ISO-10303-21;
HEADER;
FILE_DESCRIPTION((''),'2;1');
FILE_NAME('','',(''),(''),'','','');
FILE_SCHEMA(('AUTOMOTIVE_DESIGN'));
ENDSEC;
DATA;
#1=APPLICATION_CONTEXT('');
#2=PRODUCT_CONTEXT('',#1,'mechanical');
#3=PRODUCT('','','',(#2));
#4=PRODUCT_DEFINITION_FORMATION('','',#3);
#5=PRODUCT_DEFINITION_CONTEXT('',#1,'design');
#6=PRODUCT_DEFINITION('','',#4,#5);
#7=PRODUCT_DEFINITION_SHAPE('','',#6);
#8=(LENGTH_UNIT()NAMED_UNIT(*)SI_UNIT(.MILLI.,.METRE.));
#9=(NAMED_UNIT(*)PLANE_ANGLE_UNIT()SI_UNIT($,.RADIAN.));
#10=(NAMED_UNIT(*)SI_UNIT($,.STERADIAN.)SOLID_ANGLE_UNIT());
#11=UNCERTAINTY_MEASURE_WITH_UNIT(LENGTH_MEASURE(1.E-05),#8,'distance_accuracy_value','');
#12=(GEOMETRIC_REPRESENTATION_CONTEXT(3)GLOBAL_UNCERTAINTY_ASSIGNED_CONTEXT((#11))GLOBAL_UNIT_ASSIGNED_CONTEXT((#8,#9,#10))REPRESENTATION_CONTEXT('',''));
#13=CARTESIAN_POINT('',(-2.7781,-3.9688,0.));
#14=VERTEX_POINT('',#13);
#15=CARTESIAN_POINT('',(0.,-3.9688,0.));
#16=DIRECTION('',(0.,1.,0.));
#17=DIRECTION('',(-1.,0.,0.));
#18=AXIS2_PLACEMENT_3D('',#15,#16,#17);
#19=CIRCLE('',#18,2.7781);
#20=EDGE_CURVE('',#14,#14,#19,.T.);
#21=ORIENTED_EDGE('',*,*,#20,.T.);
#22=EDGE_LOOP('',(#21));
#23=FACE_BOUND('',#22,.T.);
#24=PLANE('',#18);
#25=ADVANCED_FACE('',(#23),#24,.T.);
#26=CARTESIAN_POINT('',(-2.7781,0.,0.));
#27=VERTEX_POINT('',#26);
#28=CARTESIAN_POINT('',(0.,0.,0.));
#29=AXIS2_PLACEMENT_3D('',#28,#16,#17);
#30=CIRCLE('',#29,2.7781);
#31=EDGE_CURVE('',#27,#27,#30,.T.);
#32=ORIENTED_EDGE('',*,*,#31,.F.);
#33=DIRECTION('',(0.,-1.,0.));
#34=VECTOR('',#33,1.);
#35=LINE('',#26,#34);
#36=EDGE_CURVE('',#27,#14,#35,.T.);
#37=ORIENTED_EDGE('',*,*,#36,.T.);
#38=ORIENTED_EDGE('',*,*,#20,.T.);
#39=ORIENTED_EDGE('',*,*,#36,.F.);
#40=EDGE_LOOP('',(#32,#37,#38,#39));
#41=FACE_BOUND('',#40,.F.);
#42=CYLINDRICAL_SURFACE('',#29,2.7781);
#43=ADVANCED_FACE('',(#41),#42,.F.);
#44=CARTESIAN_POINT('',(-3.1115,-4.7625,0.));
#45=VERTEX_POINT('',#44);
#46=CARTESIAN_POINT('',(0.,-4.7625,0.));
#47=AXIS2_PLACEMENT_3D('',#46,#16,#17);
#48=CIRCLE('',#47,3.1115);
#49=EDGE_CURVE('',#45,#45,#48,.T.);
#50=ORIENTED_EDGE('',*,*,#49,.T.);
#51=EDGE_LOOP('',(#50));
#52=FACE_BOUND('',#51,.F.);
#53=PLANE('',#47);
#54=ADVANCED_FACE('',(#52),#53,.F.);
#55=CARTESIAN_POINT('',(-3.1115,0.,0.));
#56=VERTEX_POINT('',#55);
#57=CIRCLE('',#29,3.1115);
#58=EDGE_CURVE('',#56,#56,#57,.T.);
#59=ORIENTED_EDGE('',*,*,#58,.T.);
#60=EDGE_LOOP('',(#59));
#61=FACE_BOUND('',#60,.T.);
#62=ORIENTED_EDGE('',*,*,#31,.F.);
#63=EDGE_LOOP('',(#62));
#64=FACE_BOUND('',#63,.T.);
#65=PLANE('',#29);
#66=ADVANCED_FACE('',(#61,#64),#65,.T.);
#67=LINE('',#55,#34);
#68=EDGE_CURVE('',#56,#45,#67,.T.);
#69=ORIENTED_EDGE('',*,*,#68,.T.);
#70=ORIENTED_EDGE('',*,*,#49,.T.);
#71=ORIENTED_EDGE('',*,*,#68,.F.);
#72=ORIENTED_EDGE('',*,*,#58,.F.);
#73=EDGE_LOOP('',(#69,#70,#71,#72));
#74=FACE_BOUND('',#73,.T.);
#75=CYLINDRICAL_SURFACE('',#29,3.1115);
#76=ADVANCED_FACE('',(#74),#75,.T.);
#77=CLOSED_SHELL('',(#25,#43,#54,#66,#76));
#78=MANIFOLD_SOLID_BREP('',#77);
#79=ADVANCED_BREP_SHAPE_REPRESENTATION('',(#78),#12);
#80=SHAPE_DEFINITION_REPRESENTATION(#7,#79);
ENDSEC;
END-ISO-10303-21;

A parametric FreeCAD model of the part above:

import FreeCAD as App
import Part
import Sketcher

V = App.Vector
Q = App.Units.Quantity

doc = App.newDocument("Part")
params = doc.addObject("Spreadsheet::Sheet", "Params")
for row, (alias, value) in enumerate([
    ("sketch1_diameter", "0.245 in"),
    ("pad1_length", "0.1875 in"),
    ("sketch2_diameter", "0.218748 in"),
    ("pocket1_length", "0.156252 in"),
], start=1):
    params.set(f"A{row}", alias)
    params.set(f"B{row}", "=" + value)
    params.setAlias(f"B{row}", alias)

body = doc.addObject("PartDesign::Body", "Body")

sketch1 = body.newObject("Sketcher::SketchObject", "Sketch")
sketch1.AttachmentSupport = (doc.getObject("XZ_Plane"), [""])
sketch1.MapMode = "FlatFace"
sketch1.addGeometry(Part.Circle(V(0, 0, 0), V(0, 0, 1), 3.1), False)
sketch1.addConstraint([
    Sketcher.Constraint("Coincident", 0, 3, -1, 1),
    Sketcher.Constraint("Diameter", 0, Q("0.245 in")),
])
sketch1.setExpression("Constraints[1]", "Params.sketch1_diameter")
pad1 = body.newObject("PartDesign::Pad", "Pad")
pad1.Profile = sketch1
pad1.setExpression("Length", "Params.pad1_length")

sketch2 = body.newObject("Sketcher::SketchObject", "Sketch001")
sketch2.AttachmentSupport = (doc.getObject("XZ_Plane"), [""])
sketch2.MapMode = "FlatFace"
sketch2.addGeometry(Part.Circle(V(0, 0, 0), V(0, 0, 1), 2.8), False)
sketch2.addConstraint([
    Sketcher.Constraint("Coincident", 0, 3, -1, 1),
    Sketcher.Constraint("Diameter", 0, Q("0.218748 in")),
])
sketch2.setExpression("Constraints[1]", "Params.sketch2_diameter")
pocket1 = body.newObject("PartDesign::Pocket", "Pocket")
pocket1.Profile = sketch2
pocket1.setExpression("Length", "Params.pocket1_length")
pocket1.Reversed = True

doc.recompute()
